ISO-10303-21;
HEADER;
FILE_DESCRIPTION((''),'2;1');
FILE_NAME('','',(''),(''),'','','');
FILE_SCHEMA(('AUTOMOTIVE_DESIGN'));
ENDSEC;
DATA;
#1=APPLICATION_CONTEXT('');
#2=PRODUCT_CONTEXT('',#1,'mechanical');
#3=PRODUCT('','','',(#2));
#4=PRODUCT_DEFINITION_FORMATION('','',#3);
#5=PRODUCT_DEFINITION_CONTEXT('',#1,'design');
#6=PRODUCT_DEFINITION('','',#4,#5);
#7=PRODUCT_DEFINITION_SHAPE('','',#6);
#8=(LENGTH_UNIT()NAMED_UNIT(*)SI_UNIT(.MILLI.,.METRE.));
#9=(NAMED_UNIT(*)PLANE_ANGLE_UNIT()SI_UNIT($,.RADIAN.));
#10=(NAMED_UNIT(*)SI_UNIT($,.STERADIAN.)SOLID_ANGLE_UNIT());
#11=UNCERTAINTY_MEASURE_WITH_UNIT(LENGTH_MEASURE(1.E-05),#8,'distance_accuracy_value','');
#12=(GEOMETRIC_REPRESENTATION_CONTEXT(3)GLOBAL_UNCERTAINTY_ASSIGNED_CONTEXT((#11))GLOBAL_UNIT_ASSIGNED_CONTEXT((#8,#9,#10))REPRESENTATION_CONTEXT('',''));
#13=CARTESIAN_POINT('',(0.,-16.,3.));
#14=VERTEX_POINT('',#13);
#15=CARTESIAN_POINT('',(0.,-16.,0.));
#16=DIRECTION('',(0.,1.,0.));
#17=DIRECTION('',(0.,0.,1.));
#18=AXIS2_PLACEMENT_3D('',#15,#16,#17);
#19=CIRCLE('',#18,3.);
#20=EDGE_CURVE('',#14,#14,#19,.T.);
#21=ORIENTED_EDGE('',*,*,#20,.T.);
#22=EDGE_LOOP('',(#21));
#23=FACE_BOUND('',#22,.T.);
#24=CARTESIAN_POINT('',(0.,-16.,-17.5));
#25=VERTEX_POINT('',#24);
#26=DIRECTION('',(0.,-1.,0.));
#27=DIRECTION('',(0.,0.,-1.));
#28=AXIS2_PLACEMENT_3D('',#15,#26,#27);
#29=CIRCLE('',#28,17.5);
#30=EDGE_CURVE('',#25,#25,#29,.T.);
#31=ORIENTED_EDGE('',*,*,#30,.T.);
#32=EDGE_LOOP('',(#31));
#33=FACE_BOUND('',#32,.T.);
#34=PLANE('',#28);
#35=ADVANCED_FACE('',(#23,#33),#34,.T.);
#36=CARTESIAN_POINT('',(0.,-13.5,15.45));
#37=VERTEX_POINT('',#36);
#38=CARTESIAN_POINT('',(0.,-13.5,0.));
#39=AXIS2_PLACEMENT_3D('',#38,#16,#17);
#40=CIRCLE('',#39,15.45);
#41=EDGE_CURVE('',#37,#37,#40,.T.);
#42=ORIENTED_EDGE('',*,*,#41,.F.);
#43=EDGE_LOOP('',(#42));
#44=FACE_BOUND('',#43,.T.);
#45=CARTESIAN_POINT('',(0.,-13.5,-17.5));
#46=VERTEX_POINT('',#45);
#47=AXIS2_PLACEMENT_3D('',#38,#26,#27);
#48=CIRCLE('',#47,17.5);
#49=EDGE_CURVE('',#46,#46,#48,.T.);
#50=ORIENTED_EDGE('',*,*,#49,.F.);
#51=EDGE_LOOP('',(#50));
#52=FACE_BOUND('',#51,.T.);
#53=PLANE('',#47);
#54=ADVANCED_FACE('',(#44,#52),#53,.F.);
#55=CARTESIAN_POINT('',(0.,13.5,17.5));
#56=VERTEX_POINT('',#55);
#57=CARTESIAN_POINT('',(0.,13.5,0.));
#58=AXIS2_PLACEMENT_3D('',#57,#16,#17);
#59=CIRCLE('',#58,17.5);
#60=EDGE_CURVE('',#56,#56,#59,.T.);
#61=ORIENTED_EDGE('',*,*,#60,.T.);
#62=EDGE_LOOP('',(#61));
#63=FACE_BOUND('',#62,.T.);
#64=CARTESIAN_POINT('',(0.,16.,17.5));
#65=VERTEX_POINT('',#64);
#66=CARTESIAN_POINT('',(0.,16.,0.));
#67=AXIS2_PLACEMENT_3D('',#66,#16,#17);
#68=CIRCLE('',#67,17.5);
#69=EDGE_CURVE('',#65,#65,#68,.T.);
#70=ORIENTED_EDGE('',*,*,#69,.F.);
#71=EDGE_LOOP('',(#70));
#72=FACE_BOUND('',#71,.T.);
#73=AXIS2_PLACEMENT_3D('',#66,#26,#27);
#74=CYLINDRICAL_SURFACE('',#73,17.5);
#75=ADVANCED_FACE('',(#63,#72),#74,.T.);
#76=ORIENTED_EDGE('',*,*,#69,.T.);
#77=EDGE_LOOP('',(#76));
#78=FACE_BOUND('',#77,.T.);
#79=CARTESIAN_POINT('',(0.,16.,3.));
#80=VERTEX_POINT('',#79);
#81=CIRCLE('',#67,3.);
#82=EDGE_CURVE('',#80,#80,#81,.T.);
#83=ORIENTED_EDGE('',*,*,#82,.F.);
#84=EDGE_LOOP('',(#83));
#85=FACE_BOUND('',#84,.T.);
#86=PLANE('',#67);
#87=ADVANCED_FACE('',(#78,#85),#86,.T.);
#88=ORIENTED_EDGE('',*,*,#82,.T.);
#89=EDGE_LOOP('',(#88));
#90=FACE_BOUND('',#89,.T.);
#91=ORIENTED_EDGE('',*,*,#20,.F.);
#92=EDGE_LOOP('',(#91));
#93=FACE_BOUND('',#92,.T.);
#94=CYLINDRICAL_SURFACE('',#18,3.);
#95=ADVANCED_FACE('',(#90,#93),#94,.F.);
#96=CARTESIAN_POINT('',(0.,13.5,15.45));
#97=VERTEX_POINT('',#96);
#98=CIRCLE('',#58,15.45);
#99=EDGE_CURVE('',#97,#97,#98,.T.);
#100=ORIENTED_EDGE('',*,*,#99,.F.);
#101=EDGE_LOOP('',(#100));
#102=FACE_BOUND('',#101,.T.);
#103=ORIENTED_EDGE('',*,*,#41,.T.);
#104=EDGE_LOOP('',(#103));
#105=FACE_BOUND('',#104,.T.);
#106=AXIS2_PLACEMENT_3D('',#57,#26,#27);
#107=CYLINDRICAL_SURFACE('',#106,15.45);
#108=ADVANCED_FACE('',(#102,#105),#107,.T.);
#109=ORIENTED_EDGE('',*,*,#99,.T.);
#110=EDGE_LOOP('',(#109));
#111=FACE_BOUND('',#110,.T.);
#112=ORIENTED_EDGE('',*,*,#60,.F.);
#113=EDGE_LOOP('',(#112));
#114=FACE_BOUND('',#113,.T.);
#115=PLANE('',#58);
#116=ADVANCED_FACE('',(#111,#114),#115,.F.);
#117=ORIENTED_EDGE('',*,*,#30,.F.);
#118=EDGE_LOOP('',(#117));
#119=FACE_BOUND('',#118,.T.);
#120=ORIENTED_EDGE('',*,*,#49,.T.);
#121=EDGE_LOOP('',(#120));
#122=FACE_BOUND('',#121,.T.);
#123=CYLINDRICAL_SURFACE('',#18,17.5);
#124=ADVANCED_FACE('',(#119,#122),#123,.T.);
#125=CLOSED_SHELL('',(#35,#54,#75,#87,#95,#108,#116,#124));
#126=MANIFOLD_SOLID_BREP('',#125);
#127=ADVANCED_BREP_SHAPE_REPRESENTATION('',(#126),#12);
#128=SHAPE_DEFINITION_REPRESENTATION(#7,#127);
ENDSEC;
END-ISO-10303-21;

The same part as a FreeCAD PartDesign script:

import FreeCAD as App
import Part
import Sketcher
from FreeCAD import Vector
Q = App.Units.Quantity

doc = App.newDocument("Part")
params = doc.addObject("Spreadsheet::Sheet", "Params")
for row, (alias, value) in enumerate([
    ("sketch1_diameter", "30.9 mm"),
    ("pad1_length", "27 mm"),
    ("sketch2_diameter", "35 mm"),
    ("pad2_length", "2.5 mm"),
    ("sketch3_diameter", "35 mm"),
    ("pad3_length", "2.5 mm"),
    ("sketch4_diameter", "6 mm"),
], start=1):
    params.set(f"A{row}", alias)
    params.set(f"B{row}", "=" + value)
    params.setAlias(f"B{row}", alias)

body = doc.addObject("PartDesign::Body", "Body")

sketch1 = doc.addObject("Sketcher::SketchObject", "Sketch")
body.addObject(sketch1)
sketch1.AttachmentSupport = (doc.XZ_Plane, [""])
sketch1.MapMode = "FlatFace"
sketch1.addGeometry(Part.Circle(Vector(0, 0, 0), Vector(0, 0, 1), 15.45), False)
sketch1.addConstraint([
    Sketcher.Constraint("Coincident", 0, 3, -1, 1),
    Sketcher.Constraint("Diameter", 0, Q("30.9 mm")),
])
sketch1.setExpression("Constraints[1]", "Params.sketch1_diameter")
pad1 = doc.addObject("PartDesign::Pad", "Pad")
body.addObject(pad1)
pad1.Profile = sketch1
pad1.setExpression("Length", "Params.pad1_length")
pad1.Midplane = True

sketch2 = doc.addObject("Sketcher::SketchObject", "Sketch001")
body.addObject(sketch2)
sketch2.AttachmentSupport = (doc.XZ_Plane, [""])
sketch2.MapMode = "FlatFace"
sketch2.AttachmentOffset = App.Placement(Vector(0, 0, -13.5), App.Rotation())
sketch2.addGeometry(Part.Circle(Vector(0, 0, 0), Vector(0, 0, 1), 17.5), False)
sketch2.addConstraint([
    Sketcher.Constraint("Coincident", 0, 3, -1, 1),
    Sketcher.Constraint("Diameter", 0, Q("35 mm")),
])
sketch2.setExpression("Constraints[1]", "Params.sketch2_diameter")
pad2 = doc.addObject("PartDesign::Pad", "Pad001")
body.addObject(pad2)
pad2.Profile = sketch2
pad2.setExpression("Length", "Params.pad2_length")
pad2.Reversed = True

sketch3 = doc.addObject("Sketcher::SketchObject", "Sketch002")
body.addObject(sketch3)
sketch3.AttachmentSupport = (doc.XZ_Plane, [""])
sketch3.MapMode = "FlatFace"
sketch3.AttachmentOffset = App.Placement(Vector(0, 0, 16), App.Rotation())
sketch3.addGeometry(Part.Circle(Vector(0, 0, 0), Vector(0, 0, 1), 17.5), False)
sketch3.addConstraint([
    Sketcher.Constraint("Coincident", 0, 3, -1, 1),
    Sketcher.Constraint("Diameter", 0, Q("35 mm")),
])
sketch3.setExpression("Constraints[1]", "Params.sketch3_diameter")
pad3 = doc.addObject("PartDesign::Pad", "Pad002")
body.addObject(pad3)
pad3.Profile = sketch3
pad3.setExpression("Length", "Params.pad3_length")
pad3.Reversed = True

sketch4 = doc.addObject("Sketcher::SketchObject", "Sketch003")
body.addObject(sketch4)
sketch4.AttachmentSupport = (doc.XZ_Plane, [""])
sketch4.MapMode = "FlatFace"
sketch4.AttachmentOffset = App.Placement(Vector(0, 0, -16), App.Rotation())
sketch4.addGeometry(Part.Circle(Vector(0, 0, 0), Vector(0, 0, 1), 3), False)
sketch4.addConstraint([
    Sketcher.Constraint("Coincident", 0, 3, -1, 1),
    Sketcher.Constraint("Diameter", 0, Q("6 mm")),
])
sketch4.setExpression("Constraints[1]", "Params.sketch4_diameter")
pocket1 = doc.addObject("PartDesign::Pocket", "Pocket")
body.addObject(pocket1)
pocket1.Profile = sketch4
pocket1.Type = "ThroughAll"
pocket1.Reversed = True

doc.recompute()
